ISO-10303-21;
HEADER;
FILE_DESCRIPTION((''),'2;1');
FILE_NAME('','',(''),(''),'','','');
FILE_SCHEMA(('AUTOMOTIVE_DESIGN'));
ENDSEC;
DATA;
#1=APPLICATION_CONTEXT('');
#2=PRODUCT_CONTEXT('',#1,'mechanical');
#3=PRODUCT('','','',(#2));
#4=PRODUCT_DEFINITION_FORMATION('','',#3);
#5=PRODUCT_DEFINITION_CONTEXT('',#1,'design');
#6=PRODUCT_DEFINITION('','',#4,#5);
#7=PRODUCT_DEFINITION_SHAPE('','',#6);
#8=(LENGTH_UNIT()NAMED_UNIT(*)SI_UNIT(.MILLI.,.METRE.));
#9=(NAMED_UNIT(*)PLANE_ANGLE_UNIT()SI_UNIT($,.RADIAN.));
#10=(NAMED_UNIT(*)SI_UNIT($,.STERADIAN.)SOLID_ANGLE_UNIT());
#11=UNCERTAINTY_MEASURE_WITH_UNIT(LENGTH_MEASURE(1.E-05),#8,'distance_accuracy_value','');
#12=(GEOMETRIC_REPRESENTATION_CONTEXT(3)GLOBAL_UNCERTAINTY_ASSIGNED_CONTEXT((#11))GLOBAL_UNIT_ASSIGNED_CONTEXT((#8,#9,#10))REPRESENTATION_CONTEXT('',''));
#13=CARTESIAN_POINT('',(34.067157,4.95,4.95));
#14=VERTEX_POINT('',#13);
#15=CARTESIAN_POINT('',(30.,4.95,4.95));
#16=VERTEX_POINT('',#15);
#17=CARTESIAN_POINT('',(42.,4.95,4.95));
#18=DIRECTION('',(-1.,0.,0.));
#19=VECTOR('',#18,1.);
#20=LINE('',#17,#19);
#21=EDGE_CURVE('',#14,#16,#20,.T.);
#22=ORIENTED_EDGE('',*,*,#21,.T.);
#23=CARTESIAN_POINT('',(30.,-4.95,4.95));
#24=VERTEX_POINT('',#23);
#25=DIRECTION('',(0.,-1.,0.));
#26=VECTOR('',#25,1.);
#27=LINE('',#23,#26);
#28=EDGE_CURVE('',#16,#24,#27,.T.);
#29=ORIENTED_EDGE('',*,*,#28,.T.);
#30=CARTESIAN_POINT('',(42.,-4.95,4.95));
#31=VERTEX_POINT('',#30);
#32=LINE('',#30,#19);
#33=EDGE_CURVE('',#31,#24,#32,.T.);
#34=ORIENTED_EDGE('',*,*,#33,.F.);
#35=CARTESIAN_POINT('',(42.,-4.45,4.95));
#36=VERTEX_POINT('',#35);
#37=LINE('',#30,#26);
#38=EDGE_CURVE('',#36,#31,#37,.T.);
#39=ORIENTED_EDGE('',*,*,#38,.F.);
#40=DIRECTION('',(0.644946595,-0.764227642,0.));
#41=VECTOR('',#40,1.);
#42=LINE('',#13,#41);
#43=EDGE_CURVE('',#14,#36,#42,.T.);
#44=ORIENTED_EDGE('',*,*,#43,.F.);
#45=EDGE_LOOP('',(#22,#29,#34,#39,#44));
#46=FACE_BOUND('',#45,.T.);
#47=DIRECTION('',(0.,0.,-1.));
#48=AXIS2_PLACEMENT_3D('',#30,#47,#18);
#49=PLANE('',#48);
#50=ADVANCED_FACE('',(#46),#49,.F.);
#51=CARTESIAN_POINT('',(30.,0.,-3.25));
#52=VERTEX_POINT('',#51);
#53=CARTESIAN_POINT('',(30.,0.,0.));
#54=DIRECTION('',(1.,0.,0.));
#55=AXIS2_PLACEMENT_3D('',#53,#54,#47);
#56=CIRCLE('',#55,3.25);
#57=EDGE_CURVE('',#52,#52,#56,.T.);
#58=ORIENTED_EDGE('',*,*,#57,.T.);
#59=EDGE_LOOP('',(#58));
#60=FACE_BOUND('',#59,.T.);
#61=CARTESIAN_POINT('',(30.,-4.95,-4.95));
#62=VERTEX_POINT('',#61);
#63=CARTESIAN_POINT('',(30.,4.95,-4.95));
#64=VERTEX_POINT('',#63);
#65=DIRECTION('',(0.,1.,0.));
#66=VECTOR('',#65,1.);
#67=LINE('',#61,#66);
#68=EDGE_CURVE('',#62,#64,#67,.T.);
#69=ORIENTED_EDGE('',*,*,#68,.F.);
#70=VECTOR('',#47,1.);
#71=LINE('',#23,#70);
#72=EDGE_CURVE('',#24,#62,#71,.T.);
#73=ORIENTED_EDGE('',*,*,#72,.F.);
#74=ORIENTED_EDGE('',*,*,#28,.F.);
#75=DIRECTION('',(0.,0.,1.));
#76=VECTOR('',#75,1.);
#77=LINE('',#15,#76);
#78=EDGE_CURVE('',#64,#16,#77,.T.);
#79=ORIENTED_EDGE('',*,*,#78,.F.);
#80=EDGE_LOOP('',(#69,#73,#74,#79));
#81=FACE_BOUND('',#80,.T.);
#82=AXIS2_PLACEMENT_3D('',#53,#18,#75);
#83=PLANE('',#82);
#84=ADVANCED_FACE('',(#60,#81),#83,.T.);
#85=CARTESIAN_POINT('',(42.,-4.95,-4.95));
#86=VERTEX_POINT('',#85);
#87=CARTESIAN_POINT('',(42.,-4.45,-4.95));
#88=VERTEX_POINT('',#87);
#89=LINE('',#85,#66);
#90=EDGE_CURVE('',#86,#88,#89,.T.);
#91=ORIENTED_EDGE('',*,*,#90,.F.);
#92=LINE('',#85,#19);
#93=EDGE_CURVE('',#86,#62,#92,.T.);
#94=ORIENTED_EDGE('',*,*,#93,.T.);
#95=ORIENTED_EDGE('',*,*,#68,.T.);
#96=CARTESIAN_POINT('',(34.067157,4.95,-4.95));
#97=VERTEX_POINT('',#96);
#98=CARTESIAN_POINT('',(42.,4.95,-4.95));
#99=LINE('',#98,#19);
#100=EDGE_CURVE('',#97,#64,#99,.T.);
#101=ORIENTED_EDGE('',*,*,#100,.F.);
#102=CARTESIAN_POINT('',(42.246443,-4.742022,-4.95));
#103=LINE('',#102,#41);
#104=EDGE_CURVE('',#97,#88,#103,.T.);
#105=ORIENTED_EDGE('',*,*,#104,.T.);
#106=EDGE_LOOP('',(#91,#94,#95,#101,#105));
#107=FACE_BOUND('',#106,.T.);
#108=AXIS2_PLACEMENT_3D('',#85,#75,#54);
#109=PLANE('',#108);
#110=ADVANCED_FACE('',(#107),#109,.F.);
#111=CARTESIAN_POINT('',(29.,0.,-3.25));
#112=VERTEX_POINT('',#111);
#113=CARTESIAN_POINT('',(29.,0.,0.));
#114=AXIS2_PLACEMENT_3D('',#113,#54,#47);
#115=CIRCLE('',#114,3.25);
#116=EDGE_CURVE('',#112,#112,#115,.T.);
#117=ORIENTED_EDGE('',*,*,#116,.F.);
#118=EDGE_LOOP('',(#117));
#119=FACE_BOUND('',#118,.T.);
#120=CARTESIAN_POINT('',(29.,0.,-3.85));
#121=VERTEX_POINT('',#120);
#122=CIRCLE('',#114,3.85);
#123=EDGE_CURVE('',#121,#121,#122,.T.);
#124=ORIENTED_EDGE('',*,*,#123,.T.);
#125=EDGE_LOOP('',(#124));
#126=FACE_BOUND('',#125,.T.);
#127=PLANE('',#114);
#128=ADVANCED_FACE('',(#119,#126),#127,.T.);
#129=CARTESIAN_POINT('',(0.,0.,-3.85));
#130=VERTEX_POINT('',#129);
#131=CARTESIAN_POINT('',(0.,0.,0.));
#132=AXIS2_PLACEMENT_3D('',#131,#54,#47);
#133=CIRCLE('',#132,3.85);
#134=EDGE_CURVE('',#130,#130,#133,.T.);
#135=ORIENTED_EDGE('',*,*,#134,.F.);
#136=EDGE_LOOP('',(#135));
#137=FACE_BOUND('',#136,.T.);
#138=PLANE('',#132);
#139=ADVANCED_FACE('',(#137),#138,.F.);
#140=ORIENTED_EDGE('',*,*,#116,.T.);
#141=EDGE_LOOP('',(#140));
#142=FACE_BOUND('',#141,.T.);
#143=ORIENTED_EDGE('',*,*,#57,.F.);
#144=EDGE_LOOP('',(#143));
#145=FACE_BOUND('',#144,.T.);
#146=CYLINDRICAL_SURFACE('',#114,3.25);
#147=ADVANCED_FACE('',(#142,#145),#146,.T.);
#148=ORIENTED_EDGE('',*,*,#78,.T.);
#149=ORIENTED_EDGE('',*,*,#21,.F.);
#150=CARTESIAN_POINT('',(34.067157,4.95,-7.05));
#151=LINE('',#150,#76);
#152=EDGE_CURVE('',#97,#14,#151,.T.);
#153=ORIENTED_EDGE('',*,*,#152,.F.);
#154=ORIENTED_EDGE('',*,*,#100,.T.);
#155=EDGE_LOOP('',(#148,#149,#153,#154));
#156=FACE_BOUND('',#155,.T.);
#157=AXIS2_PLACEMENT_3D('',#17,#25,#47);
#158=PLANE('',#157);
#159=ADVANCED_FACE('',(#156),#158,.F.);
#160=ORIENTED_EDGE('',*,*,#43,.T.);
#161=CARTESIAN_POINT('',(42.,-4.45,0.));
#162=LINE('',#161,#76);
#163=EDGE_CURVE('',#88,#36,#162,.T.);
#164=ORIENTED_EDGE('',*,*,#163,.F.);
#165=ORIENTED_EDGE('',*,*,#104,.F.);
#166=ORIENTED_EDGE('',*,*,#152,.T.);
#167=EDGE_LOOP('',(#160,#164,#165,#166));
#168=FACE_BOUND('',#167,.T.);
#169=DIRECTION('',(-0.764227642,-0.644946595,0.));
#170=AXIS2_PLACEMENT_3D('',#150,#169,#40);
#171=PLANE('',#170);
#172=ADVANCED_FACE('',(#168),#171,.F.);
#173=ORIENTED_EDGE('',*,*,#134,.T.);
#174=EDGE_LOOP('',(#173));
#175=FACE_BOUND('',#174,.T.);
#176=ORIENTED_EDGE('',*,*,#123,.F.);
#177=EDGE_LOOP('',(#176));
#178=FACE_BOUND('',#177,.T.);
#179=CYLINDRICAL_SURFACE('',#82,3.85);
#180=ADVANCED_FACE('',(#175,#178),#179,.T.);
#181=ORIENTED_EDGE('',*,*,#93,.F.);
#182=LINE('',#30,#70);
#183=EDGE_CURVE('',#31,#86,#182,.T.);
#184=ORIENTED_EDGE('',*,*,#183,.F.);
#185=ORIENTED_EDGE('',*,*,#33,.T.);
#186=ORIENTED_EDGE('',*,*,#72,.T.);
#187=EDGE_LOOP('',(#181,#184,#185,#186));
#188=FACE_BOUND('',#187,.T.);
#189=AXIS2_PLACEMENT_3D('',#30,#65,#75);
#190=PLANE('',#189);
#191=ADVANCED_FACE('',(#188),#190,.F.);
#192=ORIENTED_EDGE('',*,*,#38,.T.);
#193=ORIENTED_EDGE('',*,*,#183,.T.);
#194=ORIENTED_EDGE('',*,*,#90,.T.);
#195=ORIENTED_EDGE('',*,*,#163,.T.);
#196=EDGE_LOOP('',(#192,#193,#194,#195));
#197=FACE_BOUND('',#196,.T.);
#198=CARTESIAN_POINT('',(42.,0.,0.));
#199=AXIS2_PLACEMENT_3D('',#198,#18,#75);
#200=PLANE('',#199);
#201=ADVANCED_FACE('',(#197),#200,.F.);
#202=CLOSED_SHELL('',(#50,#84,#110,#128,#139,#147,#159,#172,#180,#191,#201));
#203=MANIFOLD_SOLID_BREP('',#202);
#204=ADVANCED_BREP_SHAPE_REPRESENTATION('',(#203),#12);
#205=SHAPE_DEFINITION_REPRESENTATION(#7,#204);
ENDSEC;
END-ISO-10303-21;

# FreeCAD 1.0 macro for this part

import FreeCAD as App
import Part
import Sketcher
Q = App.Units.Quantity


def add_polygon(sketch, points):
    """Adds a closed chain of lines whose ends are joined by coincident constraints."""
    first, n = sketch.GeometryCount, len(points)
    for a, b in zip(points, points[1:] + points[:1]):
        sketch.addGeometry(Part.LineSegment(App.Vector(*a, 0), App.Vector(*b, 0)), False)
    for i in range(n):
        sketch.addConstraint(Sketcher.Constraint("Coincident", first + i, 2, first + (i + 1) % n, 1))

doc = App.newDocument("Part")
params = doc.addObject("Spreadsheet::Sheet", "Params")
for row, (alias, value) in enumerate([
    ("sketch1_diameter", "7.7 mm"),
    ("pad1_length", "30 mm"),
    ("sketch2_diameter", "7.7 mm"),
    ("sketch2_diameter2", "6.5 mm"),
    ("pocket1_length", "1 mm"),
    ("sketch3_width", "9.9 mm"),
    ("pad2_length", "12 mm"),
    ("sketch4_height", "9.4 mm"),
    ("sketch4_length", "12.3 mm"),
    ("pocket2_length", "12 mm"),
], start=1):
    params.set(f"A{row}", alias)
    params.set(f"B{row}", "=" + value)
    params.setAlias(f"B{row}", alias)

body = doc.addObject("PartDesign::Body", "Body")

sketch1 = doc.addObject("Sketcher::SketchObject", "Sketch")
body.addObject(sketch1)
sketch1.AttachmentSupport = (doc.YZ_Plane, [""])
sketch1.MapMode = "FlatFace"
sketch1.addGeometry(Part.Circle(App.Vector(0, 0, 0), App.Vector(0, 0, 1), 3.9), False)
sketch1.addConstraint([
    Sketcher.Constraint("Coincident", 0, 3, -1, 1),
    Sketcher.Constraint("Diameter", 0, Q("7.7 mm")),
])
sketch1.setExpression("Constraints[1]", "Params.sketch1_diameter")
pad1 = doc.addObject("PartDesign::Pad", "Pad")
body.addObject(pad1)
pad1.Profile = sketch1
pad1.setExpression("Length", "Params.pad1_length")

sketch2 = doc.addObject("Sketcher::SketchObject", "Sketch001")
body.addObject(sketch2)
sketch2.AttachmentSupport = (doc.YZ_Plane, [""])
sketch2.MapMode = "FlatFace"
sketch2.AttachmentOffset = App.Placement(App.Vector(0, 0, 30), App.Rotation())
sketch2.addGeometry([
    Part.Circle(App.Vector(0, 0, 0), App.Vector(0, 0, 1), 3.9),
    Part.Circle(App.Vector(0, 0, 0), App.Vector(0, 0, 1), 3.2),
], False)
sketch2.addConstraint([
    Sketcher.Constraint("Coincident", 0, 3, -1, 1),
    Sketcher.Constraint("Coincident", 1, 3, -1, 1),
    Sketcher.Constraint("Diameter", 0, Q("7.7 mm")),
    Sketcher.Constraint("Diameter", 1, Q("6.5 mm")),
])
sketch2.setExpression("Constraints[2]", "Params.sketch2_diameter")
sketch2.setExpression("Constraints[3]", "Params.sketch2_diameter2")
pocket1 = doc.addObject("PartDesign::Pocket", "Pocket")
body.addObject(pocket1)
pocket1.Profile = sketch2
pocket1.setExpression("Length", "Params.pocket1_length")

sketch3 = doc.addObject("Sketcher::SketchObject", "Sketch002")
body.addObject(sketch3)
sketch3.AttachmentSupport = (doc.YZ_Plane, [""])
sketch3.MapMode = "FlatFace"
sketch3.AttachmentOffset = App.Placement(App.Vector(0, 0, 30), App.Rotation())
add_polygon(sketch3, [(5, 5), (-5, 5), (-5, -5), (5, -5)])
sketch3.addConstraint([
    Sketcher.Constraint("Horizontal", 0),
    Sketcher.Constraint("Vertical", 1),
    Sketcher.Constraint("Horizontal", 2),
    Sketcher.Constraint("Vertical", 3),
    Sketcher.Constraint("Symmetric", 0, 2, 2, 2, -1, 1),
    Sketcher.Constraint("Equal", 2, 1),
    Sketcher.Constraint("DistanceX", 0, 2, 0, 1, Q("9.9 mm")),
])
sketch3.setExpression("Constraints[10]", "Params.sketch3_width")
pad2 = doc.addObject("PartDesign::Pad", "Pad001")
body.addObject(pad2)
pad2.Profile = sketch3
pad2.setExpression("Length", "Params.pad2_length")

sketch4 = doc.addObject("Sketcher::SketchObject", "Sketch003")
body.addObject(sketch4)
sketch4.AttachmentSupport = (doc.XY_Plane, [""])
sketch4.MapMode = "FlatFace"
sketch4.AttachmentOffset = App.Placement(App.Vector(0, 0, 4.95), App.Rotation())
add_polygon(sketch4, [(34, 5), (42, -4), (42, 5)])
sketch4.addConstraint([
    Sketcher.Constraint("Vertical", 1),
    Sketcher.Constraint("Horizontal", 2),
    Sketcher.Constraint("DistanceY", 1, 1, 1, 2, Q("9.4 mm")),
    Sketcher.Constraint("DistanceX", -1, 1, 0, 2, Q("42 mm")),
    Sketcher.Constraint("Distance", 0, Q("12.3 mm")),
    Sketcher.Constraint("DistanceY", 0, 2, -1, 1, Q("4.45 mm")),
])
sketch4.setExpression("Constraints[5]", "Params.sketch4_height")
sketch4.setExpression("Constraints[7]", "Params.sketch4_length")
pocket2 = doc.addObject("PartDesign::Pocket", "Pocket001")
body.addObject(pocket2)
pocket2.Profile = sketch4
pocket2.setExpression("Length", "Params.pocket2_length")

doc.recompute()
